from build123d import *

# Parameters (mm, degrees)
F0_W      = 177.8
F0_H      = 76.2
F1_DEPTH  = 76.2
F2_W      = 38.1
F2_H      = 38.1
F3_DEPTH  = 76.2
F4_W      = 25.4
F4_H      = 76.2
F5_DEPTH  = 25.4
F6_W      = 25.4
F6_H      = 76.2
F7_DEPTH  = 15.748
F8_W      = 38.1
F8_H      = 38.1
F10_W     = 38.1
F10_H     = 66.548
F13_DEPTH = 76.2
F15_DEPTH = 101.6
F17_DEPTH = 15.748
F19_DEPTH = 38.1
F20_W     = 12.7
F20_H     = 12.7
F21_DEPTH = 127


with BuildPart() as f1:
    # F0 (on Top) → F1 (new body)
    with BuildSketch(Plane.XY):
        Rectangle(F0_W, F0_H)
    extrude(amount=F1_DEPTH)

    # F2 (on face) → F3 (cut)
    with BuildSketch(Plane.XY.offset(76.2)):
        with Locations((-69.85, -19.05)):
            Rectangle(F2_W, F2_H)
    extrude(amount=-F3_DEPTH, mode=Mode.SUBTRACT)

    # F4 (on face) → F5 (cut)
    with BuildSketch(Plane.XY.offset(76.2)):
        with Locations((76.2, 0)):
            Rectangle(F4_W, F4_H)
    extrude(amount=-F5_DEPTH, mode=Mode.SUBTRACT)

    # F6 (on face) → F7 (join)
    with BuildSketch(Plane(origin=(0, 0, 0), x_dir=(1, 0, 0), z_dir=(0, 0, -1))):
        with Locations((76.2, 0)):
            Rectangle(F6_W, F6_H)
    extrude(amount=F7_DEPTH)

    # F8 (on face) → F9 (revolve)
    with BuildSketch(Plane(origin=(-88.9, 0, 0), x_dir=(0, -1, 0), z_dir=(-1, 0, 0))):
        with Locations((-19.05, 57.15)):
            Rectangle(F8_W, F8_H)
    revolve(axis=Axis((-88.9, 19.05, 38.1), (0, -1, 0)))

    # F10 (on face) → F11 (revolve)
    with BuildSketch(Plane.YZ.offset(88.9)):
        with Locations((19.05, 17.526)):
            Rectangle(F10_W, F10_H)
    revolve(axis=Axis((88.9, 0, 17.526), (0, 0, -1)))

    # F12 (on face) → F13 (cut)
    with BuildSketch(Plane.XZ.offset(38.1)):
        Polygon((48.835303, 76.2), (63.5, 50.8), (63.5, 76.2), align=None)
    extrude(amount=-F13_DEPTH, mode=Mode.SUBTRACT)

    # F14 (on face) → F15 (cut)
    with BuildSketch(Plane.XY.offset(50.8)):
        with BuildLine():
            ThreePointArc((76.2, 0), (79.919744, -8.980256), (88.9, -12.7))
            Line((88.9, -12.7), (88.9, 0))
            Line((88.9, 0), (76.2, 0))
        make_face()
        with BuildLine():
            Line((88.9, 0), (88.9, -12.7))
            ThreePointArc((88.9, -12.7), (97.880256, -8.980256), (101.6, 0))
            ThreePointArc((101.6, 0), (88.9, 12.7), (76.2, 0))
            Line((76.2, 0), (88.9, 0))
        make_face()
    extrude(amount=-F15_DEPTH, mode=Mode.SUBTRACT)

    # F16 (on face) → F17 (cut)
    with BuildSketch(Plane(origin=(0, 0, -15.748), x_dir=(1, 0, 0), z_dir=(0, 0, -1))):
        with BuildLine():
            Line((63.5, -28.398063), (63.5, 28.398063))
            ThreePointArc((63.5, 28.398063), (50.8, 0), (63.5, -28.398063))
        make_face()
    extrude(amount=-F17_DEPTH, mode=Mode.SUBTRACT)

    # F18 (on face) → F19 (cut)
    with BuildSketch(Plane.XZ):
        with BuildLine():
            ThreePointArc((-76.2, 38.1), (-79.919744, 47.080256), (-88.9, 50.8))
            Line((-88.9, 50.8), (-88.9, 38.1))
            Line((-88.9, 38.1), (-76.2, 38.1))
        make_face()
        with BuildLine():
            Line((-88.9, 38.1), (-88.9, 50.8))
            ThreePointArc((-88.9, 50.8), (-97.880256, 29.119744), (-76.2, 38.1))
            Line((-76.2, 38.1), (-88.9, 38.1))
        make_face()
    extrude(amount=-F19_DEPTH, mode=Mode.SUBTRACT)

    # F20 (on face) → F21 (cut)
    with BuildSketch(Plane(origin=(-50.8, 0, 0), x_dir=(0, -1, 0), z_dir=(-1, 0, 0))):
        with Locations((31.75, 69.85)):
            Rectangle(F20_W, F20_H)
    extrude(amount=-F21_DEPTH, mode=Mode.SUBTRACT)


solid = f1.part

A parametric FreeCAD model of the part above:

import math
import FreeCAD as App
import Part
import Sketcher
Q = App.Units.Quantity


def add_polygon(sketch, points):
    """Adds a closed chain of lines whose ends are joined by coincident constraints."""
    first, n = sketch.GeometryCount, len(points)
    for a, b in zip(points, points[1:] + points[:1]):
        sketch.addGeometry(Part.LineSegment(App.Vector(*a, 0), App.Vector(*b, 0)), False)
    for i in range(n):
        sketch.addConstraint(Sketcher.Constraint("Coincident", first + i, 2, first + (i + 1) % n, 1))

doc = App.newDocument("Part")
body = doc.addObject("PartDesign::Body", "Body")

# Sketch on XY plane
sketch1 = body.newObject("Sketcher::SketchObject", "Sketch")
sketch1.AttachmentSupport = (doc.getObject("XY_Plane"), [""])
sketch1.MapMode = "FlatFace"
add_polygon(sketch1, [(-88.9, 38.1), (-88.9, -38.1), (88.9, -38.1), (88.9, 38.1)])  # lines 0-3
sketch1.addConstraint([
    Sketcher.Constraint("Vertical", 0),
    Sketcher.Constraint("Horizontal", 1),
    Sketcher.Constraint("Vertical", 2),
    Sketcher.Constraint("Horizontal", 3),
    Sketcher.Constraint("Symmetric", 0, 2, 2, 2, -1, 1),
    Sketcher.Constraint("DistanceX", 1, 1, 1, 2, Q("7 in")),
    Sketcher.Constraint("DistanceY", 0, 2, 0, 1, Q("3 in")),
])
pad1 = body.newObject("PartDesign::Pad", "Pad")
pad1.Profile = sketch1
pad1.Length = Q("3 in")

# Sketch on XY plane
sketch2 = body.newObject("Sketcher::SketchObject", "Sketch001")
sketch2.AttachmentSupport = (doc.getObject("XY_Plane"), [""])
sketch2.MapMode = "FlatFace"
sketch2.AttachmentOffset = App.Placement(App.Vector(0, 0, 3 * 25.4), App.Rotation())
add_polygon(sketch2, [(-88.9, 0), (-88.9, -38.1), (-50.8, -38.1), (-50.8, 0)])  # lines 0-3
sketch2.addConstraint([
    Sketcher.Constraint("Vertical", 0),
    Sketcher.Constraint("Horizontal", 1),
    Sketcher.Constraint("Vertical", 2),
    Sketcher.Constraint("Horizontal", 3),
    Sketcher.Constraint("PointOnObject", 2, 2, -1),
    Sketcher.Constraint("Equal", 3, 0),
    Sketcher.Constraint("DistanceX", 1, 1, 1, 2, Q("1.5 in")),
    Sketcher.Constraint("DistanceX", 1, 2, -1, 1, Q("2 in")),
])
pocket1 = body.newObject("PartDesign::Pocket", "Pocket")
pocket1.Profile = sketch2
pocket1.Length = Q("3 in")

# Sketch on XY plane
sketch3 = body.newObject("Sketcher::SketchObject", "Sketch002")
sketch3.AttachmentSupport = (doc.getObject("XY_Plane"), [""])
sketch3.MapMode = "FlatFace"
sketch3.AttachmentOffset = App.Placement(App.Vector(0, 0, 3 * 25.4), App.Rotation())
add_polygon(sketch3, [(63.5, 38.1), (63.5, -38.1), (88.9, -38.1), (88.9, 38.1)])  # lines 0-3
sketch3.addConstraint([
    Sketcher.Constraint("Vertical", 0),
    Sketcher.Constraint("Horizontal", 1),
    Sketcher.Constraint("Vertical", 2),
    Sketcher.Constraint("Horizontal", 3),
    Sketcher.Constraint("DistanceX", 1, 1, 1, 2, Q("1 in")),
    Sketcher.Constraint("DistanceY", 0, 2, 0, 1, Q("3 in")),
    Sketcher.Constraint("DistanceX", -1, 1, 0, 2, Q("2.5 in")),
    Sketcher.Constraint("DistanceY", 0, 2, -1, 1, Q("1.5 in")),
])
pocket2 = body.newObject("PartDesign::Pocket", "Pocket001")
pocket2.Profile = sketch3
pocket2.Length = Q("1 in")

# Sketch on XY plane
sketch4 = body.newObject("Sketcher::SketchObject", "Sketch003")
sketch4.AttachmentSupport = (doc.getObject("XY_Plane"), [""])
sketch4.MapMode = "FlatFace"
add_polygon(sketch4, [(63.5, -38.1), (63.5, 38.1), (88.9, 38.1), (88.9, -38.1)])  # lines 0-3
sketch4.addConstraint([
    Sketcher.Constraint("Vertical", 0),
    Sketcher.Constraint("Horizontal", 1),
    Sketcher.Constraint("Vertical", 2),
    Sketcher.Constraint("Horizontal", 3),
    Sketcher.Constraint("DistanceX", 1, 1, 1, 2, Q("1 in")),
    Sketcher.Constraint("DistanceY", 0, 1, 0, 2, Q("3 in")),
    Sketcher.Constraint("DistanceX", -1, 1, 0, 2, Q("2.5 in")),
    Sketcher.Constraint("DistanceY", -1, 1, 0, 2, Q("1.5 in")),
])
pad2 = body.newObject("PartDesign::Pad", "Pad001")
pad2.Profile = sketch4
pad2.Length = Q("0.62 in")
pad2.Reversed = True

# Sketch on YZ plane
sketch5 = body.newObject("Sketcher::SketchObject", "Sketch004")
sketch5.AttachmentSupport = (doc.getObject("YZ_Plane"), [""])
sketch5.MapMode = "FlatFace"
sketch5.AttachmentOffset = App.Placement(App.Vector(0, 0, -3.5 * 25.4), App.Rotation())
add_polygon(sketch5, [(38.1, 76.2), (38.1, 38.1), (0, 38.1), (0, 76.2)])  # lines 0-3
sketch5.addGeometry(Part.LineSegment(App.Vector(38.1, 38.1, 0), App.Vector(0, 38.1, 0)), True)  # axis
sketch5.addConstraint([
    Sketcher.Constraint("Vertical", 0),
    Sketcher.Constraint("Horizontal", 1),
    Sketcher.Constraint("Vertical", 2),
    Sketcher.Constraint("Horizontal", 3),
    Sketcher.Constraint("Horizontal", 4),
    Sketcher.Constraint("Coincident", 4, 1, 0, 2),
    Sketcher.Constraint("PointOnObject", 1, 2, -2),
    Sketcher.Constraint("PointOnObject", 4, 2, -2),
    Sketcher.Constraint("Equal", 4, 0),
    Sketcher.Constraint("DistanceX", 1, 2, 1, 1, Q("1.5 in")),
    Sketcher.Constraint("DistanceY", -1, 1, 2, 2, Q("3 in")),
])
revolution = body.newObject("PartDesign::Revolution", "Revolution")
revolution.Profile = sketch5
revolution.ReferenceAxis = (sketch5, ["Axis0"])
revolution.Angle = 360

# Sketch on YZ plane
sketch6 = body.newObject("Sketcher::SketchObject", "Sketch005")
sketch6.AttachmentSupport = (doc.getObject("YZ_Plane"), [""])
sketch6.MapMode = "FlatFace"
sketch6.AttachmentOffset = App.Placement(App.Vector(0, 0, 3.5 * 25.4), App.Rotation())
add_polygon(sketch6, [(0, 50.8), (0, -15.748), (38.1, -15.748), (38.1, 50.8)])  # lines 0-3
sketch6.addConstraint([
    Sketcher.Constraint("Vertical", 0),
    Sketcher.Constraint("Horizontal", 1),
    Sketcher.Constraint("Vertical", 2),
    Sketcher.Constraint("Horizontal", 3),
    Sketcher.Constraint("PointOnObject", 0, 2, -2),
    Sketcher.Constraint("DistanceX", 1, 1, 1, 2, Q("1.5 in")),
    Sketcher.Constraint("DistanceY", -1, 1, 2, 2, Q("2 in")),
    Sketcher.Constraint("DistanceY", 0, 2, 0, 1, Q("2.62 in")),
])
revolution2 = body.newObject("PartDesign::Revolution", "Revolution001")
revolution2.Profile = sketch6
revolution2.ReferenceAxis = (sketch6, ["V_Axis"])
revolution2.Angle = 360

# Sketch on XZ plane
sketch7 = body.newObject("Sketcher::SketchObject", "Sketch006")
sketch7.AttachmentSupport = (doc.getObject("XZ_Plane"), [""])
sketch7.MapMode = "FlatFace"
sketch7.AttachmentOffset = App.Placement(App.Vector(0, 0, 1.5 * 25.4), App.Rotation())
add_polygon(sketch7, [(48.835303, 76.2), (63.5, 50.8), (63.5, 76.2)])  # lines 0-2
sketch7.addConstraint([
    Sketcher.Constraint("Vertical", 1),
    Sketcher.Constraint("Horizontal", 2),
    Sketcher.Constraint("DistanceY", 1, 1, 1, 2, Q("1 in")),
    Sketcher.Constraint("DistanceY", -1, 1, 0, 2, Q("2 in")),
    Sketcher.Constraint("Angle", 0, Q("-60 deg")),
    Sketcher.Constraint("DistanceX", -1, 1, 0, 2, Q("2.5 in")),
])
pocket3 = body.newObject("PartDesign::Pocket", "Pocket002")
pocket3.Profile = sketch7
pocket3.Length = Q("3 in")

# Sketch on XY plane
sketch8 = body.newObject("Sketcher::SketchObject", "Sketch007")
sketch8.AttachmentSupport = (doc.getObject("XY_Plane"), [""])
sketch8.MapMode = "FlatFace"
sketch8.AttachmentOffset = App.Placement(App.Vector(0, 0, 2 * 25.4), App.Rotation())
sketch8.addGeometry([
    Part.ArcOfCircle(Part.Circle(App.Vector(88.9, 0, 0), App.Vector(0, 0, 1), 12.7), math.radians(-179.999998), math.radians(-90.000002)),
    Part.ArcOfCircle(Part.Circle(App.Vector(88.9, 0, 0), App.Vector(0, 0, 1), 12.7), math.radians(-89.999998), math.radians(-0.000002)),
    Part.ArcOfCircle(Part.Circle(App.Vector(88.9, 0, 0), App.Vector(0, 0, 1), 12.7), math.radians(0), math.radians(180)),
], False)
sketch8.addConstraint([
    Sketcher.Constraint("Tangent", 0, 2, 1, 1),
    Sketcher.Constraint("Tangent", 1, 2, 2, 1),
    Sketcher.Constraint("Tangent", 2, 2, 0, 1),
    Sketcher.Constraint("PointOnObject", 0, 3, -1),
    Sketcher.Constraint("PointOnObject", 1, 2, -1),
    Sketcher.Constraint("PointOnObject", 2, 2, -1),
    Sketcher.Constraint("Vertical", 2, 3, 0, 2),
    Sketcher.Constraint("Radius", 0, Q("0.5 in")),
    Sketcher.Constraint("DistanceX", -1, 1, 1, 2, Q("4 in")),
])
pocket4 = body.newObject("PartDesign::Pocket", "Pocket003")
pocket4.Profile = sketch8
pocket4.Length = Q("4 in")

# Sketch on XY plane
sketch9 = body.newObject("Sketcher::SketchObject", "Sketch008")
sketch9.AttachmentSupport = (doc.getObject("XY_Plane"), [""])
sketch9.MapMode = "FlatFace"
sketch9.AttachmentOffset = App.Placement(App.Vector(0, 0, -0.62 * 25.4), App.Rotation())
sketch9.addGeometry([
    Part.LineSegment(App.Vector(63.5, 28.398063, 0), App.Vector(63.5, -28.398063, 0)),
    Part.ArcOfCircle(Part.Circle(App.Vector(88.899999, 0, 0), App.Vector(0, 0, 1), 38.099999), math.radians(131.810314), math.radians(228.189686)),
], False)
sketch9.addConstraint([
    Sketcher.Constraint("Coincident", 0, 1, 1, 1),
    Sketcher.Constraint("Coincident", 1, 2, 0, 2),
    Sketcher.Constraint("Vertical", 0),
    Sketcher.Constraint("PointOnObject", 1, 3, -1),
    Sketcher.Constraint("Radius", 1, Q("1.5 in")),
    Sketcher.Constraint("DistanceX", 0, 1, 1, 3, Q("1 in")),
    Sketcher.Constraint("DistanceX", -1, 1, 1, 3, Q("3.5 in")),
])
pocket5 = body.newObject("PartDesign::Pocket", "Pocket004")
pocket5.Profile = sketch9
pocket5.Length = Q("0.62 in")
pocket5.Reversed = True

# Sketch on XZ plane
sketch10 = body.newObject("Sketcher::SketchObject", "Sketch009")
sketch10.AttachmentSupport = (doc.getObject("XZ_Plane"), [""])
sketch10.MapMode = "FlatFace"
sketch10.addGeometry([
    Part.ArcOfCircle(Part.Circle(App.Vector(-88.9, 38.1, 0), App.Vector(0, 0, 1), 12.7), math.radians(0.000002), math.radians(89.999998)),
    Part.ArcOfCircle(Part.Circle(App.Vector(-88.9, 38.1, 0), App.Vector(0, 0, 1), 12.7), math.radians(90), math.radians(360)),
], False)
sketch10.addConstraint([
    Sketcher.Constraint("Tangent", 0, 1, 1, 2),
    Sketcher.Constraint("Coincident", 1, 1, 0, 2),
    Sketcher.Constraint("Horizontal", 1, 3, 0, 1),
    Sketcher.Constraint("Vertical", 0, 3, 1, 1),
    Sketcher.Constraint("Radius", 0, Q("0.5 in")),
    Sketcher.Constraint("DistanceX", 0, 1, -1, 1, Q("3 in")),
    Sketcher.Constraint("DistanceY", -1, 1, 1, 1, Q("2 in")),
])
pocket6 = body.newObject("PartDesign::Pocket", "Pocket005")
pocket6.Profile = sketch10
pocket6.Length = Q("1.5 in")

# Sketch on YZ plane
sketch11 = body.newObject("Sketcher::SketchObject", "Sketch010")
sketch11.AttachmentSupport = (doc.getObject("YZ_Plane"), [""])
sketch11.MapMode = "FlatFace"
sketch11.AttachmentOffset = App.Placement(App.Vector(0, 0, -2 * 25.4), App.Rotation())
add_polygon(sketch11, [(-25.4, 76.2), (-25.4, 63.5), (-38.1, 63.5), (-38.1, 76.2)])  # lines 0-3
sketch11.addConstraint([
    Sketcher.Constraint("Vertical", 0),
    Sketcher.Constraint("Horizontal", 1),
    Sketcher.Constraint("Vertical", 2),
    Sketcher.Constraint("Horizontal", 3),
    Sketcher.Constraint("Equal", 3, 0),
    Sketcher.Constraint("DistanceX", 1, 2, 1, 1, Q("0.5 in")),
    Sketcher.Constraint("DistanceX", 0, 2, -1, 1, Q("1 in")),
    Sketcher.Constraint("DistanceY", -1, 1, 2, 2, Q("3 in")),
])
pocket7 = body.newObject("PartDesign::Pocket", "Pocket006")
pocket7.Profile = sketch11
pocket7.Length = Q("5 in")
pocket7.Reversed = True

doc.recompute()
